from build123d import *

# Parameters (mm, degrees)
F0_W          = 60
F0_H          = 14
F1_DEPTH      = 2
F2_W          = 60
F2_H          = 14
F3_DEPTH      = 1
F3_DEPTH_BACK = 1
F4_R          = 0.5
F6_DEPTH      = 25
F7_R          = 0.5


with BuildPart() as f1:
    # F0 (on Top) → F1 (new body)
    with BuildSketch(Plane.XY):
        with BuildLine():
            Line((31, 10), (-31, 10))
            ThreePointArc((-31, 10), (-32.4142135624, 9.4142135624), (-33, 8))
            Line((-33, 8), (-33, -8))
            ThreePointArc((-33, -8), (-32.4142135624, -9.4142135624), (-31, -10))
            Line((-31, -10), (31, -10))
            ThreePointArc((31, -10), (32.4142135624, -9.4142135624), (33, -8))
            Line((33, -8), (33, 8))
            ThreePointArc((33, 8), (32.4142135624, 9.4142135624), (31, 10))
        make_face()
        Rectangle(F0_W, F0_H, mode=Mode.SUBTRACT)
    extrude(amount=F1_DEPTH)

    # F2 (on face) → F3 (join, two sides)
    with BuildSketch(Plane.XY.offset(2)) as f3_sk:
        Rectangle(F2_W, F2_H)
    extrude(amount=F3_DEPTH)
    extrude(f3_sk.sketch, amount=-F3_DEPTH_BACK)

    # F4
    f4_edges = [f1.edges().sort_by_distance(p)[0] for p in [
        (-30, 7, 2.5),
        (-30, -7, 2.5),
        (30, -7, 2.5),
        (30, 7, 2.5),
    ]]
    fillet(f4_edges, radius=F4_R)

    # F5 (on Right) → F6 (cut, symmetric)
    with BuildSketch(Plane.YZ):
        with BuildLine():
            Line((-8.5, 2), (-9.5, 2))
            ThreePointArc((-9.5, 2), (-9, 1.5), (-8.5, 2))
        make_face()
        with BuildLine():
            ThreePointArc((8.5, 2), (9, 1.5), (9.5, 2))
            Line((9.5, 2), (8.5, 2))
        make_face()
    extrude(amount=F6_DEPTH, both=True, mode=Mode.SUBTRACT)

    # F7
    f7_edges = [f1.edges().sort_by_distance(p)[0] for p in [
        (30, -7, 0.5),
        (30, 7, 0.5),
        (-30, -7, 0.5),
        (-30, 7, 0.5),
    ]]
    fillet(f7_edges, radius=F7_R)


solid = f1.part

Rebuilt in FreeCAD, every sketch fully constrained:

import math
import FreeCAD as App
import Part
import Sketcher
Q = App.Units.Quantity


def edges_at(feature, points):
    """Names of the edges that pass closest to the given points."""
    edges = feature.Shape.Edges
    near = lambda p: min(range(len(edges)), key=lambda i: edges[i].distToShape(Part.Vertex(*p))[0])
    return sorted({f"Edge{near(p) + 1}" for p in points})


def add_polygon(sketch, points):
    """Adds a closed chain of lines whose ends are joined by coincident constraints."""
    first, n = sketch.GeometryCount, len(points)
    for a, b in zip(points, points[1:] + points[:1]):
        sketch.addGeometry(Part.LineSegment(App.Vector(*a, 0), App.Vector(*b, 0)), False)
    for i in range(n):
        sketch.addConstraint(Sketcher.Constraint("Coincident", first + i, 2, first + (i + 1) % n, 1))

doc = App.newDocument("Part")
body = doc.addObject("PartDesign::Body", "Body")

# Sketch on XY plane
sketch1 = body.newObject("Sketcher::SketchObject", "Sketch")
sketch1.AttachmentSupport = (doc.getObject("XY_Plane"), [""])
sketch1.MapMode = "FlatFace"
sketch1.addGeometry(Part.LineSegment(App.Vector(31, 10, 0), App.Vector(-31, 10, 0)), False)  # 0
sketch1.addGeometry(Part.ArcOfCircle(Part.Circle(App.Vector(-31, 8, 0), App.Vector(0, 0, 1), 2), math.radians(90), math.radians(180)), False)  # 1
sketch1.addGeometry(Part.LineSegment(App.Vector(-33, 8, 0), App.Vector(-33, -8, 0)), False)  # 2
sketch1.addGeometry(Part.ArcOfCircle(Part.Circle(App.Vector(-31, -8, 0), App.Vector(0, 0, 1), 2), math.radians(180), math.radians(270)), False)  # 3
sketch1.addGeometry(Part.LineSegment(App.Vector(-31, -10, 0), App.Vector(31, -10, 0)), False)  # 4
sketch1.addGeometry(Part.ArcOfCircle(Part.Circle(App.Vector(31, -8, 0), App.Vector(0, 0, 1), 2), math.radians(-90), math.radians(0)), False)  # 5
sketch1.addGeometry(Part.LineSegment(App.Vector(33, -8, 0), App.Vector(33, 8, 0)), False)  # 6
sketch1.addGeometry(Part.ArcOfCircle(Part.Circle(App.Vector(31, 8, 0), App.Vector(0, 0, 1), 2), math.radians(0), math.radians(90)), False)  # 7
add_polygon(sketch1, [(30, -7), (-30, -7), (-30, 7), (30, 7)])  # lines 8-11
sketch1.addConstraint([
    Sketcher.Constraint("Tangent", 0, 2, 1, 1),
    Sketcher.Constraint("Tangent", 1, 2, 2, 1),
    Sketcher.Constraint("Tangent", 2, 2, 3, 1),
    Sketcher.Constraint("Tangent", 3, 2, 4, 1),
    Sketcher.Constraint("Tangent", 4, 2, 5, 1),
    Sketcher.Constraint("Tangent", 5, 2, 6, 1),
    Sketcher.Constraint("Tangent", 6, 2, 7, 1),
    Sketcher.Constraint("Tangent", 7, 2, 0, 1),
    Sketcher.Constraint("Horizontal", 0),
    Sketcher.Constraint("Vertical", 2),
    Sketcher.Constraint("Horizontal", 4),
    Sketcher.Constraint("Vertical", 6),
    Sketcher.Constraint("Horizontal", 8),
    Sketcher.Constraint("Vertical", 9),
    Sketcher.Constraint("Horizontal", 10),
    Sketcher.Constraint("Vertical", 11),
    Sketcher.Constraint("Equal", 1, 3),
    Sketcher.Constraint("Equal", 3, 5),
    Sketcher.Constraint("Equal", 5, 7),
    Sketcher.Constraint("Symmetric", 1, 3, 5, 3, -1, 1),
    Sketcher.Constraint("Symmetric", 8, 2, 10, 2, -1, 1),
    Sketcher.Constraint("Radius", 1, Q("2 mm")),
    Sketcher.Constraint("DistanceX", 0, 2, 0, 1, Q("62 mm")),
    Sketcher.Constraint("DistanceX", 8, 2, 8, 1, Q("60 mm")),
    Sketcher.Constraint("DistanceY", 2, 2, 2, 1, Q("16 mm")),
    Sketcher.Constraint("DistanceY", 9, 1, 9, 2, Q("14 mm")),
])
pad1 = body.newObject("PartDesign::Pad", "Pad")
pad1.Profile = sketch1
pad1.Length = 2

# Sketch on XY plane
sketch2 = body.newObject("Sketcher::SketchObject", "Sketch001")
sketch2.AttachmentSupport = (doc.getObject("XY_Plane"), [""])
sketch2.MapMode = "FlatFace"
sketch2.AttachmentOffset = App.Placement(App.Vector(0, 0, 2), App.Rotation())
add_polygon(sketch2, [(-30, 7), (-30, -7), (30, -7), (30, 7)])  # lines 0-3
sketch2.addConstraint([
    Sketcher.Constraint("Vertical", 0),
    Sketcher.Constraint("Horizontal", 1),
    Sketcher.Constraint("Vertical", 2),
    Sketcher.Constraint("Horizontal", 3),
    Sketcher.Constraint("Symmetric", 0, 2, 2, 2, -1, 1),
    Sketcher.Constraint("DistanceX", 1, 1, 1, 2, Q("60 mm")),
    Sketcher.Constraint("DistanceY", 0, 2, 0, 1, Q("14 mm")),
])
pad2 = body.newObject("PartDesign::Pad", "Pad001")
pad2.Profile = sketch2
pad2.Type = "TwoLengths"
pad2.Length = 1
pad2.Length2 = 1
doc.recompute()

fillet = body.newObject("PartDesign::Fillet", "Fillet")
fillet.Base = (pad2, edges_at(pad2, [
    (-30, 7, 2.5),
    (-30, -7, 2.5),
    (30, -7, 2.5),
    (30, 7, 2.5),
]))
fillet.Radius = 0.5

# Sketch on YZ plane
sketch3 = body.newObject("Sketcher::SketchObject", "Sketch002")
sketch3.AttachmentSupport = (doc.getObject("YZ_Plane"), [""])
sketch3.MapMode = "FlatFace"
sketch3.addGeometry([
    Part.LineSegment(App.Vector(-8.5, 2, 0), App.Vector(-9.5, 2, 0)),
    Part.ArcOfCircle(Part.Circle(App.Vector(-9, 2, 0), App.Vector(0, 0, 1), 0.5), math.radians(180), math.radians(360)),
    Part.ArcOfCircle(Part.Circle(App.Vector(9, 2, 0), App.Vector(0, 0, 1), 0.5), math.radians(180), math.radians(360)),
    Part.LineSegment(App.Vector(9.5, 2, 0), App.Vector(8.5, 2, 0)),
], False)
sketch3.addConstraint([
    Sketcher.Constraint("Coincident", 0, 1, 1, 2),
    Sketcher.Constraint("Coincident", 1, 1, 0, 2),
    Sketcher.Constraint("Coincident", 2, 1, 3, 2),
    Sketcher.Constraint("Coincident", 3, 1, 2, 2),
    Sketcher.Constraint("Horizontal", 0),
    Sketcher.Constraint("Horizontal", 3),
    Sketcher.Constraint("Equal", 1, 2),
    Sketcher.Constraint("Symmetric", 1, 3, 2, 3, -2),
    Sketcher.Constraint("Horizontal", 2, 3, 0, 1),
    Sketcher.Constraint("Horizontal", 1, 1, 2, 1),
    Sketcher.Constraint("Radius", 1, Q("0.5 mm")),
    Sketcher.Constraint("DistanceX", 1, 3, -1, 1, Q("9 mm")),
    Sketcher.Constraint("DistanceY", -1, 1, 1, 3, Q("2 mm")),
])
pocket1 = body.newObject("PartDesign::Pocket", "Pocket")
pocket1.Profile = sketch3
pocket1.Length = 50
pocket1.Midplane = True
doc.recompute()

fillet2 = body.newObject("PartDesign::Fillet", "Fillet001")
fillet2.Base = (pocket1, edges_at(pocket1, [
    (30, -7, 0.5),
    (30, 7, 0.5),
    (-30, -7, 0.5),
    (-30, 7, 0.5),
]))
fillet2.Radius = 0.5

doc.recompute()
